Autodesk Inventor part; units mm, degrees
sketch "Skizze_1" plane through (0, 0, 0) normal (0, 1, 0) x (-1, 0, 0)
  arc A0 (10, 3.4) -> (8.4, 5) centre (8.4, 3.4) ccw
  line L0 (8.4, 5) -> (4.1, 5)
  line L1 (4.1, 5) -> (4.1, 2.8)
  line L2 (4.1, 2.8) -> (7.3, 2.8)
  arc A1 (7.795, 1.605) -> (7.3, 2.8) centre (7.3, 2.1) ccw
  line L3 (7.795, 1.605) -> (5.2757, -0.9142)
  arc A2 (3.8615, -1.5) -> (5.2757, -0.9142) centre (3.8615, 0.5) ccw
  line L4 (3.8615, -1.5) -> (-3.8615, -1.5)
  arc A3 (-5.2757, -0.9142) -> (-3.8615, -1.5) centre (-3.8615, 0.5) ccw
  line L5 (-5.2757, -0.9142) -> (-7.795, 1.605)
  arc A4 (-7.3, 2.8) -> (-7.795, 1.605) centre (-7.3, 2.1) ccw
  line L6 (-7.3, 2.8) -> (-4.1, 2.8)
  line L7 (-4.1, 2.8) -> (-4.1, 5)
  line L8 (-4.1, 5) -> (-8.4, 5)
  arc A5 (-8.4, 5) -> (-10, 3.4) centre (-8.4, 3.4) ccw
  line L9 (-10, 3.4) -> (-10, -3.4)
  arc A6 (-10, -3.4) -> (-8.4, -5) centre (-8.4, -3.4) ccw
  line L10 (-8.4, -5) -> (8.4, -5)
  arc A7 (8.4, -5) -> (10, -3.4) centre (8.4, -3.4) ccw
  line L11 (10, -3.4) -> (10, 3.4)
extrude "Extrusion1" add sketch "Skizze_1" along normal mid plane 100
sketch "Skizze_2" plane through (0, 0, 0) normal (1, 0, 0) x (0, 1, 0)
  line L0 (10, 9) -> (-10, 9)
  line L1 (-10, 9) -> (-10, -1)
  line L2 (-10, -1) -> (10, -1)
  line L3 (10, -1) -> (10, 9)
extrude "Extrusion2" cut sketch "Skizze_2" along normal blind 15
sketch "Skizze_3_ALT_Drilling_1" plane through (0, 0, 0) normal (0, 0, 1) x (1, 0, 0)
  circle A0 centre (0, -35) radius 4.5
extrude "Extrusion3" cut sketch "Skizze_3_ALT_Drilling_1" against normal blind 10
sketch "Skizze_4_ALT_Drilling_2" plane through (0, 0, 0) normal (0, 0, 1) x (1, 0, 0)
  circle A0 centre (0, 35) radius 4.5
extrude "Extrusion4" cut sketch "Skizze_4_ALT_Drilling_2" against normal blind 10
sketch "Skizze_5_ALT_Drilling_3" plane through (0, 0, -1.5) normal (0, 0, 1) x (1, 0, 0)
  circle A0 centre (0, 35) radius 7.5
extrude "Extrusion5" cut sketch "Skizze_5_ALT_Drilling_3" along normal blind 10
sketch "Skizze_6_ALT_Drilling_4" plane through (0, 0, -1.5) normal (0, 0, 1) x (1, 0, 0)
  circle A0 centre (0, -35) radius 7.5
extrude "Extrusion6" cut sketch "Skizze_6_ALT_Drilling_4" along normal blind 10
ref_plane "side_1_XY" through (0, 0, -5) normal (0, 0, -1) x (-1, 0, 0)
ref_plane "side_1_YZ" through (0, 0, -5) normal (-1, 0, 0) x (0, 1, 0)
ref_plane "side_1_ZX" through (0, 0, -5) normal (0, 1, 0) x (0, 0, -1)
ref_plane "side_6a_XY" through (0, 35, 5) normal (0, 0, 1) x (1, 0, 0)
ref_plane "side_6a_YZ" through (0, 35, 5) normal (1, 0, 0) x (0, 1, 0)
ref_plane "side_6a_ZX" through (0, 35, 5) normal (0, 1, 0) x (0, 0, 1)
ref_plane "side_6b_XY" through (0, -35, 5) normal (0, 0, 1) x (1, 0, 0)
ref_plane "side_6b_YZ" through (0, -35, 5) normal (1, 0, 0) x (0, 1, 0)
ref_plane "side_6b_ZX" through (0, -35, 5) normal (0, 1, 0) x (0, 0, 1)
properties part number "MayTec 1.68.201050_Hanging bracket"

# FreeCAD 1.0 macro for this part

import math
import FreeCAD as App
import Part
import Sketcher
Q = App.Units.Quantity


def add_polygon(sketch, points):
    """Adds a closed chain of lines whose ends are joined by coincident constraints."""
    first, n = sketch.GeometryCount, len(points)
    for a, b in zip(points, points[1:] + points[:1]):
        sketch.addGeometry(Part.LineSegment(App.Vector(*a, 0), App.Vector(*b, 0)), False)
    for i in range(n):
        sketch.addConstraint(Sketcher.Constraint("Coincident", first + i, 2, first + (i + 1) % n, 1))

doc = App.newDocument("Part")
body = doc.addObject("PartDesign::Body", "Body")

# Sketch on XZ plane
sketch1 = doc.addObject("Sketcher::SketchObject", "Sketch")
body.addObject(sketch1)
sketch1.AttachmentSupport = (doc.XZ_Plane, [""])
sketch1.MapMode = "FlatFace"
sketch1.addGeometry([
    Part.LineSegment(App.Vector(-10, -3.4, 0), App.Vector(-10, 3.4, 0)),  # 0
    Part.ArcOfCircle(Part.Circle(App.Vector(-8.4, 3.4, 0), App.Vector(0, 0, 1), 1.6), math.radians(90), math.radians(180)),  # 1
    Part.LineSegment(App.Vector(-8.4, 5, 0), App.Vector(-4.1, 5, 0)),  # 2
    Part.LineSegment(App.Vector(-4.1, 5, 0), App.Vector(-4.1, 2.8, 0)),  # 3
    Part.LineSegment(App.Vector(-4.1, 2.8, 0), App.Vector(-7.3, 2.8, 0)),  # 4
    Part.ArcOfCircle(Part.Circle(App.Vector(-7.3, 2.1, 0), App.Vector(0, 0, 1), 0.700036), math.radians(90), math.radians(225)),  # 5
    Part.LineSegment(App.Vector(-7.795, 1.605, 0), App.Vector(-5.2757, -0.9142, 0)),  # 6
    Part.ArcOfCircle(Part.Circle(App.Vector(-3.8615, 0.5, 0), App.Vector(0, 0, 1), 2), math.radians(-135), math.radians(-90)),  # 7
    Part.LineSegment(App.Vector(-3.8615, -1.5, 0), App.Vector(3.8615, -1.5, 0)),  # 8
    Part.ArcOfCircle(Part.Circle(App.Vector(3.8615, 0.5, 0), App.Vector(0, 0, 1), 1.999981), math.radians(-90), math.radians(-45)),  # 9
    Part.LineSegment(App.Vector(5.2757, -0.9142, 0), App.Vector(7.795, 1.605, 0)),  # 10
    Part.ArcOfCircle(Part.Circle(App.Vector(7.3, 2.1, 0), App.Vector(0, 0, 1), 0.7), math.radians(-45), math.radians(90)),  # 11
    Part.LineSegment(App.Vector(7.3, 2.8, 0), App.Vector(4.1, 2.8, 0)),  # 12
    Part.LineSegment(App.Vector(4.1, 2.8, 0), App.Vector(4.1, 5, 0)),  # 13
    Part.LineSegment(App.Vector(4.1, 5, 0), App.Vector(8.4, 5, 0)),  # 14
    Part.ArcOfCircle(Part.Circle(App.Vector(8.4, 3.4, 0), App.Vector(0, 0, 1), 1.6), math.radians(0), math.radians(90)),  # 15
    Part.LineSegment(App.Vector(10, 3.4, 0), App.Vector(10, -3.4, 0)),  # 16
    Part.ArcOfCircle(Part.Circle(App.Vector(8.4, -3.4, 0), App.Vector(0, 0, 1), 1.6), math.radians(-90), math.radians(0)),  # 17
    Part.LineSegment(App.Vector(8.4, -5, 0), App.Vector(-8.4, -5, 0)),  # 18
    Part.ArcOfCircle(Part.Circle(App.Vector(-8.4, -3.4, 0), App.Vector(0, 0, 1), 1.6), math.radians(180), math.radians(270)),  # 19
], False)
sketch1.addConstraint([
    Sketcher.Constraint("Tangent", 0, 2, 1, 2),
    Sketcher.Constraint("Tangent", 1, 1, 2, 1),
    Sketcher.Constraint("Coincident", 2, 2, 3, 1),
    Sketcher.Constraint("Coincident", 3, 2, 4, 1),
    Sketcher.Constraint("Tangent", 4, 2, 5, 1),
    Sketcher.Constraint("Tangent", 5, 2, 6, 1),
    Sketcher.Constraint("Tangent", 6, 2, 7, 1),
    Sketcher.Constraint("Tangent", 7, 2, 8, 1),
    Sketcher.Constraint("Tangent", 8, 2, 9, 1),
    Sketcher.Constraint("Tangent", 9, 2, 10, 1),
    Sketcher.Constraint("Tangent", 10, 2, 11, 1),
    Sketcher.Constraint("Tangent", 11, 2, 12, 1),
    Sketcher.Constraint("Coincident", 12, 2, 13, 1),
    Sketcher.Constraint("Coincident", 13, 2, 14, 1),
    Sketcher.Constraint("Tangent", 14, 2, 15, 2),
    Sketcher.Constraint("Tangent", 15, 1, 16, 1),
    Sketcher.Constraint("Tangent", 16, 2, 17, 2),
    Sketcher.Constraint("Tangent", 17, 1, 18, 1),
    Sketcher.Constraint("Tangent", 18, 2, 19, 2),
    Sketcher.Constraint("Tangent", 19, 1, 0, 1),
    Sketcher.Constraint("Vertical", 0),
    Sketcher.Constraint("Horizontal", 2),
    Sketcher.Constraint("Vertical", 3),
    Sketcher.Constraint("Horizontal", 4),
    Sketcher.Constraint("Horizontal", 8),
    Sketcher.Constraint("Horizontal", 12),
    Sketcher.Constraint("Vertical", 13),
    Sketcher.Constraint("Horizontal", 14),
    Sketcher.Constraint("Vertical", 16),
    Sketcher.Constraint("Horizontal", 18),
    Sketcher.Constraint("Equal", 7, 9),
    Sketcher.Constraint("Equal", 5, 11),
    Sketcher.Constraint("Equal", 1, 15),
    Sketcher.Constraint("Equal", 15, 17),
    Sketcher.Constraint("Equal", 17, 19),
    Sketcher.Constraint("Symmetric", 1, 3, 17, 3, -1, 1),
    Sketcher.Constraint("Symmetric", 5, 3, 11, 3, -2),
    Sketcher.Constraint("Symmetric", 2, 2, 13, 2, -2),
    Sketcher.Constraint("Perpendicular", 6, 10),
    Sketcher.Constraint("Horizontal", 6, 2, 9, 2),
    Sketcher.Constraint("Radius", 7, Q("2 mm")),
    Sketcher.Constraint("Radius", 1, Q("1.6 mm")),
    Sketcher.Constraint("Radius", 5, Q("0.7 mm")),
    Sketcher.Constraint("DistanceX", 2, 1, 2, 2, Q("4.3 mm")),
    Sketcher.Constraint("DistanceX", 4, 2, 4, 1, Q("3.2 mm")),
    Sketcher.Constraint("DistanceX", 18, 2, 18, 1, Q("16.8 mm")),
    Sketcher.Constraint("DistanceY", 0, 1, 0, 2, Q("6.8 mm")),
    Sketcher.Constraint("DistanceY", 3, 2, 3, 1, Q("2.2 mm")),
    Sketcher.Constraint("DistanceY", -1, 1, 7, 3, Q("0.5 mm")),
])
pad1 = doc.addObject("PartDesign::Pad", "Pad")
body.addObject(pad1)
pad1.Profile = sketch1
pad1.Length = 100
pad1.Midplane = True

# Sketch on YZ plane
sketch2 = doc.addObject("Sketcher::SketchObject", "Sketch001")
body.addObject(sketch2)
sketch2.AttachmentSupport = (doc.YZ_Plane, [""])
sketch2.MapMode = "FlatFace"
add_polygon(sketch2, [(10, -1), (10, 9), (-10, 9), (-10, -1)])  # lines 0-3
sketch2.addConstraint([
    Sketcher.Constraint("Vertical", 0),
    Sketcher.Constraint("Horizontal", 1),
    Sketcher.Constraint("Vertical", 2),
    Sketcher.Constraint("Horizontal", 3),
    Sketcher.Constraint("DistanceX", 1, 2, 1, 1, Q("20 mm")),
    Sketcher.Constraint("DistanceY", 0, 1, 0, 2, Q("10 mm")),
    Sketcher.Constraint("DistanceX", -1, 1, 0, 2, Q("10 mm")),
    Sketcher.Constraint("DistanceY", -1, 1, 0, 2, Q("9 mm")),
])
pocket1 = doc.addObject("PartDesign::Pocket", "Pocket")
body.addObject(pocket1)
pocket1.Profile = sketch2
pocket1.Length = 15
pocket1.Reversed = True

# Sketch on XY plane
sketch3 = doc.addObject("Sketcher::SketchObject", "Sketch002")
body.addObject(sketch3)
sketch3.AttachmentSupport = (doc.XY_Plane, [""])
sketch3.MapMode = "FlatFace"
sketch3.addGeometry(Part.Circle(App.Vector(0, -35, 0), App.Vector(0, 0, 1), 4.5), False)
sketch3.addConstraint([
    Sketcher.Constraint("PointOnObject", 0, 3, -2),
    Sketcher.Constraint("Diameter", 0, Q("9 mm")),
    Sketcher.Constraint("DistanceY", 0, 3, -1, 1, Q("35 mm")),
])
pocket2 = doc.addObject("PartDesign::Pocket", "Pocket001")
body.addObject(pocket2)
pocket2.Profile = sketch3
pocket2.Length = 10

# Sketch on XY plane
sketch4 = doc.addObject("Sketcher::SketchObject", "Sketch003")
body.addObject(sketch4)
sketch4.AttachmentSupport = (doc.XY_Plane, [""])
sketch4.MapMode = "FlatFace"
sketch4.addGeometry(Part.Circle(App.Vector(0, 35, 0), App.Vector(0, 0, 1), 4.5), False)
sketch4.addConstraint([
    Sketcher.Constraint("PointOnObject", 0, 3, -2),
    Sketcher.Constraint("Diameter", 0, Q("9 mm")),
    Sketcher.Constraint("DistanceY", -1, 1, 0, 3, Q("35 mm")),
])
pocket3 = doc.addObject("PartDesign::Pocket", "Pocket002")
body.addObject(pocket3)
pocket3.Profile = sketch4
pocket3.Length = 10

# Sketch on XY plane
sketch5 = doc.addObject("Sketcher::SketchObject", "Sketch004")
body.addObject(sketch5)
sketch5.AttachmentSupport = (doc.XY_Plane, [""])
sketch5.MapMode = "FlatFace"
sketch5.AttachmentOffset = App.Placement(App.Vector(0, 0, -1.5), App.Rotation())
sketch5.addGeometry(Part.Circle(App.Vector(0, 35, 0), App.Vector(0, 0, 1), 7.5), False)
sketch5.addConstraint([
    Sketcher.Constraint("PointOnObject", 0, 3, -2),
    Sketcher.Constraint("Diameter", 0, Q("15 mm")),
    Sketcher.Constraint("DistanceY", -1, 1, 0, 3, Q("35 mm")),
])
pocket4 = doc.addObject("PartDesign::Pocket", "Pocket003")
body.addObject(pocket4)
pocket4.Profile = sketch5
pocket4.Length = 10
pocket4.Reversed = True

# Sketch on XY plane
sketch6 = doc.addObject("Sketcher::SketchObject", "Sketch005")
body.addObject(sketch6)
sketch6.AttachmentSupport = (doc.XY_Plane, [""])
sketch6.MapMode = "FlatFace"
sketch6.AttachmentOffset = App.Placement(App.Vector(0, 0, -1.5), App.Rotation())
sketch6.addGeometry(Part.Circle(App.Vector(0, -35, 0), App.Vector(0, 0, 1), 7.5), False)
sketch6.addConstraint([
    Sketcher.Constraint("PointOnObject", 0, 3, -2),
    Sketcher.Constraint("Diameter", 0, Q("15 mm")),
    Sketcher.Constraint("DistanceY", 0, 3, -1, 1, Q("35 mm")),
])
pocket5 = doc.addObject("PartDesign::Pocket", "Pocket004")
body.addObject(pocket5)
pocket5.Profile = sketch6
pocket5.Length = 10
pocket5.Reversed = True

doc.recompute()
